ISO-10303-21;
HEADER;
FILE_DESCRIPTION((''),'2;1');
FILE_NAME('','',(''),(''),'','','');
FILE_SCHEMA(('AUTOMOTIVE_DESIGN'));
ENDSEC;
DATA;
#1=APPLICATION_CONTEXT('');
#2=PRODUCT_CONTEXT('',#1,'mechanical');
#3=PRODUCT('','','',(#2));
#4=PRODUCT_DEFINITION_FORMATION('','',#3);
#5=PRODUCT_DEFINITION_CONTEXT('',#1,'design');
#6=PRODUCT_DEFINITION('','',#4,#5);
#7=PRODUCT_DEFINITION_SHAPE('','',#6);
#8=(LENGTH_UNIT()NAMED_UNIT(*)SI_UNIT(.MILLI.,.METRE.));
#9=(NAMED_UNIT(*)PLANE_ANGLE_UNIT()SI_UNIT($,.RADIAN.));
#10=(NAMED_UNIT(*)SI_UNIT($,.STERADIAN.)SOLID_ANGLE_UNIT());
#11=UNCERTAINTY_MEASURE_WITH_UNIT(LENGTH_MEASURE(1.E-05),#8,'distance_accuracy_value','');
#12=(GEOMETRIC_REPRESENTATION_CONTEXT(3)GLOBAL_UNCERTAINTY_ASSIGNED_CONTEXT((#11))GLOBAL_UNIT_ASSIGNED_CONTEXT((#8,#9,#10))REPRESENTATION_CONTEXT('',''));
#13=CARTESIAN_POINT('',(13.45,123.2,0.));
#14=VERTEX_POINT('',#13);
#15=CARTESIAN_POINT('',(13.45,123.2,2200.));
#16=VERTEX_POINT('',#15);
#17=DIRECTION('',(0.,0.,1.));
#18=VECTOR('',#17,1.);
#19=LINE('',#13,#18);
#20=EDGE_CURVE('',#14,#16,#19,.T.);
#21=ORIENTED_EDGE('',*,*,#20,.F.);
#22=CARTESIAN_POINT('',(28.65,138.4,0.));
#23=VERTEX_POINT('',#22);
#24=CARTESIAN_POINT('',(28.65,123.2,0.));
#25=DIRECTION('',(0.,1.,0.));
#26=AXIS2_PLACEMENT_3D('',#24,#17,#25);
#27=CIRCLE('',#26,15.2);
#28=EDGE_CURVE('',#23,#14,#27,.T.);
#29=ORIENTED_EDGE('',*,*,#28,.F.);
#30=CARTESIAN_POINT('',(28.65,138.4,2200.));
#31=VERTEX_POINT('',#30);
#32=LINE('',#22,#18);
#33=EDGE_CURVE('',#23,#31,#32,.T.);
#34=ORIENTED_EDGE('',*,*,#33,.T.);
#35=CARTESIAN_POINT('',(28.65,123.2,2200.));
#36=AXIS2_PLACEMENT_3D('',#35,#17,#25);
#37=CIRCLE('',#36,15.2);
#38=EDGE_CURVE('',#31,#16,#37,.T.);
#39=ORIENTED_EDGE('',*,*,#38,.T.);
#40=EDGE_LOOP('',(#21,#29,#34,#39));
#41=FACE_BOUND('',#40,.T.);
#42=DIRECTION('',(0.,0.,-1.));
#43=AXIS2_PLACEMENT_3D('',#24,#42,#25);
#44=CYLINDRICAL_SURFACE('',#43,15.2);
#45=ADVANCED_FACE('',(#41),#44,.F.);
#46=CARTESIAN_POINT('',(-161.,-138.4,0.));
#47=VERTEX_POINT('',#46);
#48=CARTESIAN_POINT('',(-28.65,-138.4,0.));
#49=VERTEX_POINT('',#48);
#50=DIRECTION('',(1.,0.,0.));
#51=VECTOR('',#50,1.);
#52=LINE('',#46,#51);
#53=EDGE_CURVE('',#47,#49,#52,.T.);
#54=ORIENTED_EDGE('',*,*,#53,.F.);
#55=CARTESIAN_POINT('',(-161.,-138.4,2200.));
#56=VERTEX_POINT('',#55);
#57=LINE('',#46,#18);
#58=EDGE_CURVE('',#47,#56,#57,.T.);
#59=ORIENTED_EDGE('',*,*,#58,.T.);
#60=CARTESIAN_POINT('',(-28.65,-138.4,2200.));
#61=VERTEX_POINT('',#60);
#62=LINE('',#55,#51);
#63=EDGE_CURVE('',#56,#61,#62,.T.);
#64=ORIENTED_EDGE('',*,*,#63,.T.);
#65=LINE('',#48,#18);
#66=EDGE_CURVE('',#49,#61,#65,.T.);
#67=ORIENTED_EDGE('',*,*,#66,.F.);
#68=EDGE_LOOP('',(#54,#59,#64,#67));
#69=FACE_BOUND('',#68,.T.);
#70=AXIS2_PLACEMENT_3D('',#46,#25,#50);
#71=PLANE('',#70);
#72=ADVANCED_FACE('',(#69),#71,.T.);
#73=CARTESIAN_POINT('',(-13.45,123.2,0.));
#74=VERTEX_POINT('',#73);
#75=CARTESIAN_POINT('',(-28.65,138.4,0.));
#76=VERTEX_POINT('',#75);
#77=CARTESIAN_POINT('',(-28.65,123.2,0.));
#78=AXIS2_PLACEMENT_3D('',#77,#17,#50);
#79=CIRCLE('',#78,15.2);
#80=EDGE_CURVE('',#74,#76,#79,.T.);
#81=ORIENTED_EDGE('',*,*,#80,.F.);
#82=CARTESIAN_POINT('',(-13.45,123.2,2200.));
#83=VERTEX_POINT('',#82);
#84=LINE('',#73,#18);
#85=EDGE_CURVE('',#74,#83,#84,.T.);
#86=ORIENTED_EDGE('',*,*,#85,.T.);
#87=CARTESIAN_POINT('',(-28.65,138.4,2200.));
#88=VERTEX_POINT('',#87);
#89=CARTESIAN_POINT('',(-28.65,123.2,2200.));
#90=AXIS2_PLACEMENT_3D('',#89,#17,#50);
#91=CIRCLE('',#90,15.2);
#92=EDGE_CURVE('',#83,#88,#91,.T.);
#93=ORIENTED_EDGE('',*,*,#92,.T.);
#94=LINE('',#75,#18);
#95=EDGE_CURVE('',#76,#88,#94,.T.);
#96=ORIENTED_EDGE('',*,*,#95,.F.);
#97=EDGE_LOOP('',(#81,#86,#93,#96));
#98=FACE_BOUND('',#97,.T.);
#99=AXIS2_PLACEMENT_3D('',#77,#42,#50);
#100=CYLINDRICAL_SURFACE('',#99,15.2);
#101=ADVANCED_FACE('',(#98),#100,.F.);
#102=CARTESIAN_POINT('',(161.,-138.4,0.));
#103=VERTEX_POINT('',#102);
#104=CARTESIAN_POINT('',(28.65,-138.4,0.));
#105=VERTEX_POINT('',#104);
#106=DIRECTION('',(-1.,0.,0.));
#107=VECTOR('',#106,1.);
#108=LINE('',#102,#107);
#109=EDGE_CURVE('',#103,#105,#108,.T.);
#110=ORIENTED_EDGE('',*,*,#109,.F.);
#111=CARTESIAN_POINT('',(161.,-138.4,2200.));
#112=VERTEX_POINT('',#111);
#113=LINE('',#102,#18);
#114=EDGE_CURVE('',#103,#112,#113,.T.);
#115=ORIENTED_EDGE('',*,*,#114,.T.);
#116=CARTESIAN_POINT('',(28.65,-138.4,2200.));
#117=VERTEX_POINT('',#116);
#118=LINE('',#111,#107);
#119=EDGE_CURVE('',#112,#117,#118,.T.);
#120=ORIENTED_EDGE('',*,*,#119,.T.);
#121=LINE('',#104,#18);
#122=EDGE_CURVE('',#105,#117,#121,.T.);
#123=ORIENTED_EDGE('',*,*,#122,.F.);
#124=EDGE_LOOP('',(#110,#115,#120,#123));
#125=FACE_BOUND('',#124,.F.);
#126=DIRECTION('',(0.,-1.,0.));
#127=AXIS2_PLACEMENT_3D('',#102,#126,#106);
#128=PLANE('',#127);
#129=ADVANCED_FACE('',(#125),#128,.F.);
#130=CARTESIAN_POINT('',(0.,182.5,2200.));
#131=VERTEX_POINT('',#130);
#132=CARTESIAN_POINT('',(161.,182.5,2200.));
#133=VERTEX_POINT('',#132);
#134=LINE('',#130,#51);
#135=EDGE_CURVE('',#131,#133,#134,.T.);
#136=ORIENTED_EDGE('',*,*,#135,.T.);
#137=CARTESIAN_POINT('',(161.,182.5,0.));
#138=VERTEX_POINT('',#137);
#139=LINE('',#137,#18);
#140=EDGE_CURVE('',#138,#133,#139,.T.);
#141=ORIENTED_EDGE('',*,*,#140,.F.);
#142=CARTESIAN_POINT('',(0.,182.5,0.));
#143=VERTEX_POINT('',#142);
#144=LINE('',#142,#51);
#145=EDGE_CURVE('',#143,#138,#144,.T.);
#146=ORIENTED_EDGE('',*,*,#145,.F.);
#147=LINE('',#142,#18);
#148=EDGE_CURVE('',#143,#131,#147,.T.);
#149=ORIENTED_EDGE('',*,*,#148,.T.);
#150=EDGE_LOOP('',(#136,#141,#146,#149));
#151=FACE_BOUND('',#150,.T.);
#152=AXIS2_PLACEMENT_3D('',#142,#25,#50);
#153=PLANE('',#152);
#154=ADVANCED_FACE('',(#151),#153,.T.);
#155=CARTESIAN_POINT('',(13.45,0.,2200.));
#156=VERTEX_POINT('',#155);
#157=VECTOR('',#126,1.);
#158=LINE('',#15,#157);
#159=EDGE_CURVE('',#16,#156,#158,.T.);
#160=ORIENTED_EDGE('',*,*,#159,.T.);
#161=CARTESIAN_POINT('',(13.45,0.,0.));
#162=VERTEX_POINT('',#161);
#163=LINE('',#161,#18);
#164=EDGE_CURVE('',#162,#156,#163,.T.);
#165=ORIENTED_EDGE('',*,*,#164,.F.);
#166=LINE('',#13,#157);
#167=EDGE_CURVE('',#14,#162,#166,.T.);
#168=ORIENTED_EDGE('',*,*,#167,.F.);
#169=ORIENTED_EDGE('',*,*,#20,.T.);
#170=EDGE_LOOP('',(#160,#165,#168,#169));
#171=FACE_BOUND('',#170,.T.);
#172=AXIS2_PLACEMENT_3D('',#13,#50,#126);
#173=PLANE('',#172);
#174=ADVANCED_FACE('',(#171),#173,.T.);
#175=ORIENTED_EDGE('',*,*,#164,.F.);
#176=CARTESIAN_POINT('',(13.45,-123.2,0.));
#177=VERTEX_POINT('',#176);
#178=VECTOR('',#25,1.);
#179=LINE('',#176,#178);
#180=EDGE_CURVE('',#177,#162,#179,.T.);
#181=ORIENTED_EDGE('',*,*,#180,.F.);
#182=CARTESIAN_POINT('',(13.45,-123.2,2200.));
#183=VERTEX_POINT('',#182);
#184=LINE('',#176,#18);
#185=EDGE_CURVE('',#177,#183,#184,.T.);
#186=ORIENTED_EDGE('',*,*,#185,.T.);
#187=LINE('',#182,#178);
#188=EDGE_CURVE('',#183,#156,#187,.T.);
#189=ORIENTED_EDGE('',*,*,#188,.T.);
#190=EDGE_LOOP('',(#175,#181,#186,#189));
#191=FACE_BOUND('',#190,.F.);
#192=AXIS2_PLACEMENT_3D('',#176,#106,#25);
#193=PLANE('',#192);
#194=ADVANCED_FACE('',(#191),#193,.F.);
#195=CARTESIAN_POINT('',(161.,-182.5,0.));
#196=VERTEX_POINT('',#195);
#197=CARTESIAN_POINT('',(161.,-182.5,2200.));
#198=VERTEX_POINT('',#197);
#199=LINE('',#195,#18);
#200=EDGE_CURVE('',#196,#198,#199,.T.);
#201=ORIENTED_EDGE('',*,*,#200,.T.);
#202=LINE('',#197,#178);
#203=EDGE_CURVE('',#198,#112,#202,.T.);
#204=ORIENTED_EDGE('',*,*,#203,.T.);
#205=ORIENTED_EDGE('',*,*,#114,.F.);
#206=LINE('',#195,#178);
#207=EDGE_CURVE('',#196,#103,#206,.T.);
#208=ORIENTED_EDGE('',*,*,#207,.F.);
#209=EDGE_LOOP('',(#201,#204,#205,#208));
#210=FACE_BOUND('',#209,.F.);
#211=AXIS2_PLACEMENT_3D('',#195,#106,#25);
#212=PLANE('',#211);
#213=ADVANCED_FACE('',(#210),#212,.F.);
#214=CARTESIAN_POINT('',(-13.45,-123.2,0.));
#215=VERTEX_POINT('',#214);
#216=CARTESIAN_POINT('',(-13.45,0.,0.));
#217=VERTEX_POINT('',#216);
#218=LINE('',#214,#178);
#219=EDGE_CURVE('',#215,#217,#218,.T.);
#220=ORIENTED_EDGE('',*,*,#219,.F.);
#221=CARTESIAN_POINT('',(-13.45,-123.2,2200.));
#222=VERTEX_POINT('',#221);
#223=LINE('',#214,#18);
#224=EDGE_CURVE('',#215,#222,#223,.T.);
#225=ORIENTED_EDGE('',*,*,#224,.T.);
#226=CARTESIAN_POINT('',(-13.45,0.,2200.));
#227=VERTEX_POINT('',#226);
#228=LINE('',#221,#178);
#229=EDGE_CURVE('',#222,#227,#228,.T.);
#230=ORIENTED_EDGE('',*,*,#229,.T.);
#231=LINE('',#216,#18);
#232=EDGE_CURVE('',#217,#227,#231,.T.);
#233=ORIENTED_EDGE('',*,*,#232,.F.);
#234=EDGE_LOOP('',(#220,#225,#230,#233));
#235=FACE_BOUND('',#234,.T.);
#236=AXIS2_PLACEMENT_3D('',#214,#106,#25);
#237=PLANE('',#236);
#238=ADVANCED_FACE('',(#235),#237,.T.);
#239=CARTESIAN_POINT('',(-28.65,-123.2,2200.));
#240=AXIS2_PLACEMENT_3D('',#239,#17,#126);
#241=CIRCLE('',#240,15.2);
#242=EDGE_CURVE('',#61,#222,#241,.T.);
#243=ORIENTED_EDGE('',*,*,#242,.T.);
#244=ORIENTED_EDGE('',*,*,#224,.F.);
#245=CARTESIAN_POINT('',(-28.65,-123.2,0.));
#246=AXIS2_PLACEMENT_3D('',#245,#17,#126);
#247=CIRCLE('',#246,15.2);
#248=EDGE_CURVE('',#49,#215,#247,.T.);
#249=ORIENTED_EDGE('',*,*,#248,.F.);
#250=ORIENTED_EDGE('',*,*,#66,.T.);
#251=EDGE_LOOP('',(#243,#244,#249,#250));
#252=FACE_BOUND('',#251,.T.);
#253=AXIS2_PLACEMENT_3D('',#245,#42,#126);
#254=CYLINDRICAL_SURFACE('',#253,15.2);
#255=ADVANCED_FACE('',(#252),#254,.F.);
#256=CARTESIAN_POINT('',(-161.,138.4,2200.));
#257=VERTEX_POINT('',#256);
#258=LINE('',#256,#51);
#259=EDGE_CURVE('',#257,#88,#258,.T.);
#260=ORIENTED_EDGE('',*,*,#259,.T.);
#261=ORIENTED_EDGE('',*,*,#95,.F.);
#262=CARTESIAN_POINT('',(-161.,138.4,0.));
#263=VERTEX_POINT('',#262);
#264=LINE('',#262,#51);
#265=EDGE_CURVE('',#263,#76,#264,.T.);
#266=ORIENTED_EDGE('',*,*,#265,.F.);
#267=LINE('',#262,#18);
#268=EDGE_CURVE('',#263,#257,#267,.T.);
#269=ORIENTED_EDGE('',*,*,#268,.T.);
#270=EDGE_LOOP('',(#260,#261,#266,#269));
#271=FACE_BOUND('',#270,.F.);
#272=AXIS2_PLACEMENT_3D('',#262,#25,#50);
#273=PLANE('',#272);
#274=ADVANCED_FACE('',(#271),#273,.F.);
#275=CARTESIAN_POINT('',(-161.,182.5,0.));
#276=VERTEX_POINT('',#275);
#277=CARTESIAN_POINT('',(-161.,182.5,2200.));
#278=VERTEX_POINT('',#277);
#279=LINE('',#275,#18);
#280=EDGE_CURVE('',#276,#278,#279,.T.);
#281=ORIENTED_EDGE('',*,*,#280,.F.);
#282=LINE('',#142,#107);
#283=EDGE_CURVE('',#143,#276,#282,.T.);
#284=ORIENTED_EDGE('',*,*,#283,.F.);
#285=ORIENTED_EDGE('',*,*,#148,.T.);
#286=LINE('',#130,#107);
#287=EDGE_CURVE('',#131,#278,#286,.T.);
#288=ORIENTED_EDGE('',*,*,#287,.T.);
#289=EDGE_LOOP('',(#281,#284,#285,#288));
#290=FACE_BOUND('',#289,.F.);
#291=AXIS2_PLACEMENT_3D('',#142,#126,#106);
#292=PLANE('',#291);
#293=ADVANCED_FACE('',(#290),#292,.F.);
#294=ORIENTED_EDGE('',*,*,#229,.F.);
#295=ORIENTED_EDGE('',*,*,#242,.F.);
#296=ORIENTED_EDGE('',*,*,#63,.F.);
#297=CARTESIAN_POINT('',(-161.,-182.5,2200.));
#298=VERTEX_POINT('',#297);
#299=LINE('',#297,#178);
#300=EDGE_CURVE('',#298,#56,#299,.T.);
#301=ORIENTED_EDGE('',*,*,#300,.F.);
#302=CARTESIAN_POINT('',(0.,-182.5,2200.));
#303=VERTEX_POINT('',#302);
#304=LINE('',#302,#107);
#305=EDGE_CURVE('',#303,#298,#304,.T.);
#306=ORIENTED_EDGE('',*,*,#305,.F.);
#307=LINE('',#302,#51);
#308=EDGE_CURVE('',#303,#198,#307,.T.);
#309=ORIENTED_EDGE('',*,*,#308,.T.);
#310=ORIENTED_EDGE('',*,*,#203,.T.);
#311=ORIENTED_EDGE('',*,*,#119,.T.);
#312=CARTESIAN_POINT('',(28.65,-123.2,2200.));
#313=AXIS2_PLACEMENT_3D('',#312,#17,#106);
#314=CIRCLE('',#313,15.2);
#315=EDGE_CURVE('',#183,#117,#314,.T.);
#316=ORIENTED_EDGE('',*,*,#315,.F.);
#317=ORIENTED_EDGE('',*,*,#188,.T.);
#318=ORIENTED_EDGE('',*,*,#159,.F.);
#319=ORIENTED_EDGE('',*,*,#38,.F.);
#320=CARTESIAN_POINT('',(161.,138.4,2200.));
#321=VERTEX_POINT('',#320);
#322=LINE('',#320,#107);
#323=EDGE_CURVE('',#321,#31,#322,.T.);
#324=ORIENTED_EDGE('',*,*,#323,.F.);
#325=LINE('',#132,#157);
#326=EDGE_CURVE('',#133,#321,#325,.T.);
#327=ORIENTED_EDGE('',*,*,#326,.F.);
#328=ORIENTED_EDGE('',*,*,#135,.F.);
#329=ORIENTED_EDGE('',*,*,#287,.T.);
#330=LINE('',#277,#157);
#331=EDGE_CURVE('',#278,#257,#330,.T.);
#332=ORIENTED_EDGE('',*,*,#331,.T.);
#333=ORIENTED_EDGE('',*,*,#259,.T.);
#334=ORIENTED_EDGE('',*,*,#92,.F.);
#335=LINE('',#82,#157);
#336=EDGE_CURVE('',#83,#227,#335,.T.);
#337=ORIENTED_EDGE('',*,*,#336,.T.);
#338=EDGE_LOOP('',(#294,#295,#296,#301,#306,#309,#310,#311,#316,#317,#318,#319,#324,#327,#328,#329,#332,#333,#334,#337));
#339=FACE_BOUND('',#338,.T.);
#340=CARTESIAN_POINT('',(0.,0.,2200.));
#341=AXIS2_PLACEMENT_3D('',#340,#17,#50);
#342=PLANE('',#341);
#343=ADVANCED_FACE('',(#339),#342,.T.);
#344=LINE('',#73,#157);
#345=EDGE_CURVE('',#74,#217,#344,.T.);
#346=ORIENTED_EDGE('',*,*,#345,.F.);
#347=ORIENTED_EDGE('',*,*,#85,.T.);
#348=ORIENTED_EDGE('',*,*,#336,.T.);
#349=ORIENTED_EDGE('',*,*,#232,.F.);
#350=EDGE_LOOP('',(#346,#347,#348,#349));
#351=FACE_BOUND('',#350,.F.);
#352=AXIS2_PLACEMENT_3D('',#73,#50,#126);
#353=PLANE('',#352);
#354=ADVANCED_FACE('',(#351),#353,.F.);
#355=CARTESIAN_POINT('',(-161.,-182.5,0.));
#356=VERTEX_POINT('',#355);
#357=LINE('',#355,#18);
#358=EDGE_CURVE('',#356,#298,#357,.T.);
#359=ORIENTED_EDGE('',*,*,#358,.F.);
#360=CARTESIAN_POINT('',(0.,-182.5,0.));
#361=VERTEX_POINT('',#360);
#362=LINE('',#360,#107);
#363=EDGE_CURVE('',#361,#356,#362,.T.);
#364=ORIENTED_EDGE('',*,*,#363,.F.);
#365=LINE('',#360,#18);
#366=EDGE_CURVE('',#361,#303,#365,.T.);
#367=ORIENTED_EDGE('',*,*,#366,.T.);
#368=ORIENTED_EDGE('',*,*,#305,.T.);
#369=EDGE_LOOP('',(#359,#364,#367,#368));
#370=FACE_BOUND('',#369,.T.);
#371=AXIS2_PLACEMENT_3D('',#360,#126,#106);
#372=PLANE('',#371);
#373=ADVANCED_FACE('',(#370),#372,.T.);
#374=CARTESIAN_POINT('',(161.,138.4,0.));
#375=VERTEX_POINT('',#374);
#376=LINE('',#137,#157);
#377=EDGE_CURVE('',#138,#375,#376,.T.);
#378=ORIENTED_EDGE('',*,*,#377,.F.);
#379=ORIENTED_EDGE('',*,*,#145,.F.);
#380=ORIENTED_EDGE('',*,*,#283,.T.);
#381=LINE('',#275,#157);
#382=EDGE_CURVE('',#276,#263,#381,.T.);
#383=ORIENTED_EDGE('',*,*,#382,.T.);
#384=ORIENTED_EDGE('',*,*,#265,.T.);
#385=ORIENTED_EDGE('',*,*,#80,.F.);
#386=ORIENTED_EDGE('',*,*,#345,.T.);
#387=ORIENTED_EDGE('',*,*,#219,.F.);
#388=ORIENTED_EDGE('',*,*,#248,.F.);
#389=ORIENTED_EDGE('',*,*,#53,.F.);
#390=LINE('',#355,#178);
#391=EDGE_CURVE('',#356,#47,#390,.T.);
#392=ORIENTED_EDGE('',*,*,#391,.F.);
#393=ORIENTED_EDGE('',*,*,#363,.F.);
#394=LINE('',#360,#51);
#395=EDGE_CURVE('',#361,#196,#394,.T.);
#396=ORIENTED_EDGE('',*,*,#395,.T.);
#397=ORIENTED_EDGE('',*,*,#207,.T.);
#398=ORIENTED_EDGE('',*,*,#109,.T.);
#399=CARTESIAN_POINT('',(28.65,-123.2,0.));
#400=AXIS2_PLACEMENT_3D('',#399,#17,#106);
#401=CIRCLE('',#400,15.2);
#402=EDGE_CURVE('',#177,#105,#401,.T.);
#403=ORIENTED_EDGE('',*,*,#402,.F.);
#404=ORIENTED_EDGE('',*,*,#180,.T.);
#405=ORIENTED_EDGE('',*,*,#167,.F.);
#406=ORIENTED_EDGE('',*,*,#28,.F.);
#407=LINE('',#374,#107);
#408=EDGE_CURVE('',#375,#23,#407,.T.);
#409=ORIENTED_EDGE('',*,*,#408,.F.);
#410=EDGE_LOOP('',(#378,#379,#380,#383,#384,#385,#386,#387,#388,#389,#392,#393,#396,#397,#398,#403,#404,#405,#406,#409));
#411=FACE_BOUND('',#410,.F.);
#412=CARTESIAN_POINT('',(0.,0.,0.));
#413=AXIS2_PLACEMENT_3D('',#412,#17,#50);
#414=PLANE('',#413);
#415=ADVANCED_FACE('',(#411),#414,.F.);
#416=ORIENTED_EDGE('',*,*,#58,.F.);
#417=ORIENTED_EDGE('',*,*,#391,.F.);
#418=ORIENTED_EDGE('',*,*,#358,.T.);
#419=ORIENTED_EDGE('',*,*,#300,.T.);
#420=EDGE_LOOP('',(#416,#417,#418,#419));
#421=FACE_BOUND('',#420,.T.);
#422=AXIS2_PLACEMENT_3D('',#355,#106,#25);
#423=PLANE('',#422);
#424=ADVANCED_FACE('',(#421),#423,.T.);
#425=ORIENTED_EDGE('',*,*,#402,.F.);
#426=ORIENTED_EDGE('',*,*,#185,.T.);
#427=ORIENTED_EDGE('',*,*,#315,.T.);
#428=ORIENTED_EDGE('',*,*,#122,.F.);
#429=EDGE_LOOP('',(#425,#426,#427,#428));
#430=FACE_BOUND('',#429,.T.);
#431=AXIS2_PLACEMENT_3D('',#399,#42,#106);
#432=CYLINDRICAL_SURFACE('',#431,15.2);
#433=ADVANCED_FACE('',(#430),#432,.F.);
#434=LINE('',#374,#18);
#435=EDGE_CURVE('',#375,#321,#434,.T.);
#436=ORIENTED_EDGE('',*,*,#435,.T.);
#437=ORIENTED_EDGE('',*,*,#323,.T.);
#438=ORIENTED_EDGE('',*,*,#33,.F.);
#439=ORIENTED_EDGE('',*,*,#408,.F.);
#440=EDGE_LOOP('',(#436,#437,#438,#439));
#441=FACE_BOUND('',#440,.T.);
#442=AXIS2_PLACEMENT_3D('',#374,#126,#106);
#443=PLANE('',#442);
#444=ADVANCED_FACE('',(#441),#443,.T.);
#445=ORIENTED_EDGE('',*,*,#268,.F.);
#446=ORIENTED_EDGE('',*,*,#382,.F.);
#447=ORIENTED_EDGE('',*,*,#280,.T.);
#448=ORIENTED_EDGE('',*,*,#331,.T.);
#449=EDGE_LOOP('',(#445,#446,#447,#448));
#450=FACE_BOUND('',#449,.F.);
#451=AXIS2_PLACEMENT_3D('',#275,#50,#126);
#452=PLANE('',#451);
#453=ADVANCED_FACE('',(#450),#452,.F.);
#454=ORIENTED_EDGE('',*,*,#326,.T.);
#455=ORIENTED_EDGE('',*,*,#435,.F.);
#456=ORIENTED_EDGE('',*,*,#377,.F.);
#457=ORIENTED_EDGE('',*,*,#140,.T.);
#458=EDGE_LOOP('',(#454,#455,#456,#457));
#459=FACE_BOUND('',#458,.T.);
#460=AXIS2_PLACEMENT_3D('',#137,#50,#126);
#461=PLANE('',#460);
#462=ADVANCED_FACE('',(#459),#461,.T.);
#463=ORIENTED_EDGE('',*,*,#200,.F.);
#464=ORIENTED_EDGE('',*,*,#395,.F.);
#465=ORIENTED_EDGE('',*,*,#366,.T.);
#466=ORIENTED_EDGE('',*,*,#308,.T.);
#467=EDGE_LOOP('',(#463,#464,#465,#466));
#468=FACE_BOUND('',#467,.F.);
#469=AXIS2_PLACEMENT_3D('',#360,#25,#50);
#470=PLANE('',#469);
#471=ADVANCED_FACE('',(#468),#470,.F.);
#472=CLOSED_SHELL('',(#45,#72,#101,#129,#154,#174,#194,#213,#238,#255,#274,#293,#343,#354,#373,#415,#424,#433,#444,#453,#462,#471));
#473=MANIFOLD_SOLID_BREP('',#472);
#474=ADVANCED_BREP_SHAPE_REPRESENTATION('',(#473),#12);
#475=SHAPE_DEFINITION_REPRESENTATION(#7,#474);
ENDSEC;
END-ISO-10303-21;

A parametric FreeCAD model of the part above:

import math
import FreeCAD as App
import Part
import Sketcher
Q = App.Units.Quantity

doc = App.newDocument("Part")
body = doc.addObject("PartDesign::Body", "Body")

sketch1 = doc.addObject("Sketcher::SketchObject", "Sketch")
body.addObject(sketch1)
sketch1.AttachmentSupport = (doc.XY_Plane, [""])
sketch1.MapMode = "FlatFace"
sketch1.addGeometry(Part.LineSegment(App.Vector(-161, -138.4, 0), App.Vector(-161, -182.5, 0)), False)
sketch1.addGeometry(Part.LineSegment(App.Vector(-161, -182.5, 0), App.Vector(161, -182.5, 0)), False)
sketch1.addGeometry(Part.LineSegment(App.Vector(161, -182.5, 0), App.Vector(161, -138.4, 0)), False)
sketch1.addGeometry(Part.LineSegment(App.Vector(161, -138.4, 0), App.Vector(28.65, -138.4, 0)), False)
sketch1.addGeometry(Part.ArcOfCircle(Part.Circle(App.Vector(28.65, -123.2, 0), App.Vector(0, 0, 1), 15.2), math.radians(180), math.radians(270)), False)
sketch1.addGeometry(Part.LineSegment(App.Vector(13.45, -123.2, 0), App.Vector(13.45, 123.2, 0)), False)
sketch1.addGeometry(Part.ArcOfCircle(Part.Circle(App.Vector(28.65, 123.2, 0), App.Vector(0, 0, 1), 15.2), math.radians(90), math.radians(180)), False)
sketch1.addGeometry(Part.LineSegment(App.Vector(28.65, 138.4, 0), App.Vector(161, 138.4, 0)), False)
sketch1.addGeometry(Part.LineSegment(App.Vector(161, 138.4, 0), App.Vector(161, 182.5, 0)), False)
sketch1.addGeometry(Part.LineSegment(App.Vector(161, 182.5, 0), App.Vector(-161, 182.5, 0)), False)
sketch1.addGeometry(Part.LineSegment(App.Vector(-161, 182.5, 0), App.Vector(-161, 138.4, 0)), False)
sketch1.addGeometry(Part.LineSegment(App.Vector(-161, 138.4, 0), App.Vector(-28.65, 138.4, 0)), False)
sketch1.addGeometry(Part.ArcOfCircle(Part.Circle(App.Vector(-28.65, 123.2, 0), App.Vector(0, 0, 1), 15.2), math.radians(0), math.radians(90)), False)
sketch1.addGeometry(Part.LineSegment(App.Vector(-13.45, 123.2, 0), App.Vector(-13.45, -123.2, 0)), False)
sketch1.addGeometry(Part.ArcOfCircle(Part.Circle(App.Vector(-28.65, -123.2, 0), App.Vector(0, 0, 1), 15.2), math.radians(-90), math.radians(0)), False)
sketch1.addGeometry(Part.LineSegment(App.Vector(-28.65, -138.4, 0), App.Vector(-161, -138.4, 0)), False)
sketch1.addConstraint(Sketcher.Constraint("Coincident", 0, 2, 1, 1))
sketch1.addConstraint(Sketcher.Constraint("Coincident", 1, 2, 2, 1))
sketch1.addConstraint(Sketcher.Constraint("Coincident", 2, 2, 3, 1))
sketch1.addConstraint(Sketcher.Constraint("Tangent", 3, 2, 4, 2))
sketch1.addConstraint(Sketcher.Constraint("Tangent", 4, 1, 5, 1))
sketch1.addConstraint(Sketcher.Constraint("Tangent", 5, 2, 6, 2))
sketch1.addConstraint(Sketcher.Constraint("Tangent", 6, 1, 7, 1))
sketch1.addConstraint(Sketcher.Constraint("Coincident", 7, 2, 8, 1))
sketch1.addConstraint(Sketcher.Constraint("Coincident", 8, 2, 9, 1))
sketch1.addConstraint(Sketcher.Constraint("Coincident", 9, 2, 10, 1))
sketch1.addConstraint(Sketcher.Constraint("Coincident", 10, 2, 11, 1))
sketch1.addConstraint(Sketcher.Constraint("Tangent", 11, 2, 12, 2))
sketch1.addConstraint(Sketcher.Constraint("Tangent", 12, 1, 13, 1))
sketch1.addConstraint(Sketcher.Constraint("Tangent", 13, 2, 14, 2))
sketch1.addConstraint(Sketcher.Constraint("Tangent", 14, 1, 15, 1))
sketch1.addConstraint(Sketcher.Constraint("Coincident", 15, 2, 0, 1))
sketch1.addConstraint(Sketcher.Constraint("Vertical", 0))
sketch1.addConstraint(Sketcher.Constraint("Horizontal", 1))
sketch1.addConstraint(Sketcher.Constraint("Vertical", 2))
sketch1.addConstraint(Sketcher.Constraint("Horizontal", 3))
sketch1.addConstraint(Sketcher.Constraint("Vertical", 5))
sketch1.addConstraint(Sketcher.Constraint("Horizontal", 7))
sketch1.addConstraint(Sketcher.Constraint("Vertical", 8))
sketch1.addConstraint(Sketcher.Constraint("Horizontal", 9))
sketch1.addConstraint(Sketcher.Constraint("Vertical", 10))
sketch1.addConstraint(Sketcher.Constraint("Horizontal", 11))
sketch1.addConstraint(Sketcher.Constraint("Vertical", 13))
sketch1.addConstraint(Sketcher.Constraint("Horizontal", 15))
sketch1.addConstraint(Sketcher.Constraint("Equal", 4, 6))
sketch1.addConstraint(Sketcher.Constraint("Equal", 6, 12))
sketch1.addConstraint(Sketcher.Constraint("Equal", 12, 14))
sketch1.addConstraint(Sketcher.Constraint("Symmetric", 4, 3, 12, 3, -1, 1))
sketch1.addConstraint(Sketcher.Constraint("Symmetric", 0, 2, 8, 2, -1, 1))
sketch1.addConstraint(Sketcher.Constraint("Symmetric", 7, 2, 10, 2, -2))
sketch1.addConstraint(Sketcher.Constraint("Symmetric", 2, 2, 15, 2, -2))
sketch1.addConstraint(Sketcher.Constraint("Radius", 4, Q("15.2 mm")))
sketch1.addConstraint(Sketcher.Constraint("DistanceY", 0, 2, 0, 1, Q("44.1 mm")))
sketch1.addConstraint(Sketcher.Constraint("DistanceX", 0, 2, -1, 1, Q("161 mm")))
sketch1.addConstraint(Sketcher.Constraint("DistanceY", 0, 2, -1, 1, Q("182.5 mm")))
sketch1.addConstraint(Sketcher.Constraint("DistanceX", -1, 1, 4, 1, Q("13.45 mm")))
pad1 = doc.addObject("PartDesign::Pad", "Pad")
body.addObject(pad1)
pad1.Profile = sketch1
pad1.Length = 2200

doc.recompute()
